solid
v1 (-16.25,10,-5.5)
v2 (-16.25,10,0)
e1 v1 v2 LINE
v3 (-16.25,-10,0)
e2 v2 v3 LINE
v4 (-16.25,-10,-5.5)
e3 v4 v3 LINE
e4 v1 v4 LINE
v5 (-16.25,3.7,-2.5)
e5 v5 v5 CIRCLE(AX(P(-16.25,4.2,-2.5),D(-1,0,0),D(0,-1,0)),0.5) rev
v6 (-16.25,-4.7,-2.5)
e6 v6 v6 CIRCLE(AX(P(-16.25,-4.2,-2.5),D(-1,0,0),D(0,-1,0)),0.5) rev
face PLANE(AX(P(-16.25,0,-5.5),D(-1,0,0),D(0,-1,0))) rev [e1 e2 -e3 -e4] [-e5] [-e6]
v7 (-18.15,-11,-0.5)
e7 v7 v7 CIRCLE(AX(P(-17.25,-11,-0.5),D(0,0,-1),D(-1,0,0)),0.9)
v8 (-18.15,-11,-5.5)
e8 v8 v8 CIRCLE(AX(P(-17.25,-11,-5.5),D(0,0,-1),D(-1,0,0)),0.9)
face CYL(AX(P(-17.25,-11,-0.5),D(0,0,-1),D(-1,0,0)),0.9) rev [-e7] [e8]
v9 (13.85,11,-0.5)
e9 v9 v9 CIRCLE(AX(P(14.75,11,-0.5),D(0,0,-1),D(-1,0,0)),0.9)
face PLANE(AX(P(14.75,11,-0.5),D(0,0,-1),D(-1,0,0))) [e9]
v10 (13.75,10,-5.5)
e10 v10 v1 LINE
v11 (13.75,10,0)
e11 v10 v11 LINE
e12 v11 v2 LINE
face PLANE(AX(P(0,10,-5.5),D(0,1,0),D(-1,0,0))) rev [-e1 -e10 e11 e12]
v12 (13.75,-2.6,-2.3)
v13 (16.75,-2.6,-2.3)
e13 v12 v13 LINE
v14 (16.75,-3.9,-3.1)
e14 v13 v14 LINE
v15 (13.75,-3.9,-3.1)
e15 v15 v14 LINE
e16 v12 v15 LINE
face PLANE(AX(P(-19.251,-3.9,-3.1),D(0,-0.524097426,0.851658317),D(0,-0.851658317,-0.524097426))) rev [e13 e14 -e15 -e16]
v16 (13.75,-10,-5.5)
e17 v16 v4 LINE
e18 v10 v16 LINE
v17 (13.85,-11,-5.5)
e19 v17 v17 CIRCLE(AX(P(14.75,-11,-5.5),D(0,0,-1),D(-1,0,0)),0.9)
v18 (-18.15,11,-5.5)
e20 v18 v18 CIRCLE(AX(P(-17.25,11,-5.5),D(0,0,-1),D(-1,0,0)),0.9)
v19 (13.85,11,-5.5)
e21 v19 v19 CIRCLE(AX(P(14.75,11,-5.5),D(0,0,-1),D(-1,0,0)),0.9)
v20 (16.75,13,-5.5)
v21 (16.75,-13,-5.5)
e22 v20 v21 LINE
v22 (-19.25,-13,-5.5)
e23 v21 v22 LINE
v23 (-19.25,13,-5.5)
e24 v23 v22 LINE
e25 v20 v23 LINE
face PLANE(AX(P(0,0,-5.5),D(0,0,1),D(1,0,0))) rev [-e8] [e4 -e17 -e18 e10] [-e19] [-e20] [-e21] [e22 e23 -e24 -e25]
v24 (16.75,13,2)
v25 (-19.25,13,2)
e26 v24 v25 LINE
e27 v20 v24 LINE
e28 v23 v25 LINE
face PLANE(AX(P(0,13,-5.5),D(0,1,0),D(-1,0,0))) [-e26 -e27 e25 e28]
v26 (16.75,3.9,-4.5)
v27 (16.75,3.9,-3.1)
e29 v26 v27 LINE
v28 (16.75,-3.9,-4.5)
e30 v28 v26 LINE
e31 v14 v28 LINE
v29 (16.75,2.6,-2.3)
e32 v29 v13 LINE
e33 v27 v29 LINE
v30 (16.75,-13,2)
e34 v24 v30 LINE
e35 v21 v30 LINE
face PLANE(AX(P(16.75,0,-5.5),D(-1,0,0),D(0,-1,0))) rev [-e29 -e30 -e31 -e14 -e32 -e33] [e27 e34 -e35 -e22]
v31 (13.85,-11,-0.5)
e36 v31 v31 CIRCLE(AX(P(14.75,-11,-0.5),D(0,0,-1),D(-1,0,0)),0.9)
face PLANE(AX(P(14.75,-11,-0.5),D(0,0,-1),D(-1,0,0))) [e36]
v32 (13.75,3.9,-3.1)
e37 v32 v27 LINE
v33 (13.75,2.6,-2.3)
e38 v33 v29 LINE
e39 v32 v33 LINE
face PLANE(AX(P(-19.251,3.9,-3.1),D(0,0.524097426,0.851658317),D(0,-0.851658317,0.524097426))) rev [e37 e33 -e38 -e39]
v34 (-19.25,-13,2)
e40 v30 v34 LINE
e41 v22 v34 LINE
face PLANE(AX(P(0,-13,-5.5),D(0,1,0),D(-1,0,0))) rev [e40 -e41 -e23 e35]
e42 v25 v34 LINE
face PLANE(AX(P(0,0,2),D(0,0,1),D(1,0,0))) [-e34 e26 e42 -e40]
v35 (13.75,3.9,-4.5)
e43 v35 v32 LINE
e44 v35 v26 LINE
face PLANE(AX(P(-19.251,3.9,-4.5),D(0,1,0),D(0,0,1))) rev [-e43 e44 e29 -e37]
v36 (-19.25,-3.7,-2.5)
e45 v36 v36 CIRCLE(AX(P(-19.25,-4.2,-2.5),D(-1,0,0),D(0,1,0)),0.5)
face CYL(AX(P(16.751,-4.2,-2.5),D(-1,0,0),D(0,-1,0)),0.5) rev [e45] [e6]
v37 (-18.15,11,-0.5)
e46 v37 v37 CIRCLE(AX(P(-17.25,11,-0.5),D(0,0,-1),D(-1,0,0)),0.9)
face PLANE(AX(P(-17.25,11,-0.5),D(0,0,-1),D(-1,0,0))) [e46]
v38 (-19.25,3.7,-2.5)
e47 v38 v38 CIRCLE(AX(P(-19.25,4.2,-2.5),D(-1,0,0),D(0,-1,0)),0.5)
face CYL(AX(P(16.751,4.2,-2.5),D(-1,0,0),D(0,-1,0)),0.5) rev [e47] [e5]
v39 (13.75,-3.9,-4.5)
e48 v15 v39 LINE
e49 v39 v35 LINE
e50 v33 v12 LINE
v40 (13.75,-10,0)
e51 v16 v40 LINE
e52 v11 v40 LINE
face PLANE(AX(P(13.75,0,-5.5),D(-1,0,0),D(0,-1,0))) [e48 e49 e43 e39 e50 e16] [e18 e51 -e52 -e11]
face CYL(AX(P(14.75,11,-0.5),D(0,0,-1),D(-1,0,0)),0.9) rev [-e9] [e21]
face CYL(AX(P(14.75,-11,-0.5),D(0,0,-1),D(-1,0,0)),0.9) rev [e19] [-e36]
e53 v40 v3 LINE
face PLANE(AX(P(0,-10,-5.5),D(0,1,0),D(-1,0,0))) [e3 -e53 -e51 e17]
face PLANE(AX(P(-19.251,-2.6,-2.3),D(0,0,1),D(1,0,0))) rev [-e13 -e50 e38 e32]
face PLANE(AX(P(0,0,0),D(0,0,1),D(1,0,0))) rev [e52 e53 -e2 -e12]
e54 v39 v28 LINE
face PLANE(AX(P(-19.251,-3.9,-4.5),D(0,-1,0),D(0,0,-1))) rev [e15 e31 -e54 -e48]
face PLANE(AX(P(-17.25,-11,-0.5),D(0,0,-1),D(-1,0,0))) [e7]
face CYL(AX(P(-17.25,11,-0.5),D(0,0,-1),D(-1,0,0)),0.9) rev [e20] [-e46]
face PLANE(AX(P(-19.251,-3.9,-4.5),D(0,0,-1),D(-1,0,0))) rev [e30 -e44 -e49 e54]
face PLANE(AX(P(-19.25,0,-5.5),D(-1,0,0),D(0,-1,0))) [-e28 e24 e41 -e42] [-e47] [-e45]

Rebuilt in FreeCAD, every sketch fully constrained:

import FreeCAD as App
import Part
import Sketcher
Q = App.Units.Quantity


def add_polygon(sketch, points):
    """Adds a closed chain of lines whose ends are joined by coincident constraints."""
    first, n = sketch.GeometryCount, len(points)
    for a, b in zip(points, points[1:] + points[:1]):
        sketch.addGeometry(Part.LineSegment(App.Vector(*a, 0), App.Vector(*b, 0)), False)
    for i in range(n):
        sketch.addConstraint(Sketcher.Constraint("Coincident", first + i, 2, first + (i + 1) % n, 1))

doc = App.newDocument("Part")
body = doc.addObject("PartDesign::Body", "Body")

sketch1 = body.newObject("Sketcher::SketchObject", "Sketch")
sketch1.AttachmentSupport = (doc.getObject("XY_Plane"), [""])
sketch1.MapMode = "FlatFace"
add_polygon(sketch1, [(-19, 13), (-19, -13), (17, -13), (17, 13)])
add_polygon(sketch1, [(14, -10), (-16, -10), (-16, 10), (14, 10)])
sketch1.addConstraint([
    Sketcher.Constraint("Vertical", 0),
    Sketcher.Constraint("Horizontal", 1),
    Sketcher.Constraint("Vertical", 2),
    Sketcher.Constraint("Horizontal", 3),
    Sketcher.Constraint("Horizontal", 4),
    Sketcher.Constraint("Vertical", 5),
    Sketcher.Constraint("Horizontal", 6),
    Sketcher.Constraint("Vertical", 7),
    Sketcher.Constraint("DistanceX", 1, 1, 1, 2, Q("36 mm")),
    Sketcher.Constraint("DistanceX", 4, 2, 4, 1, Q("30 mm")),
    Sketcher.Constraint("DistanceY", 0, 2, 0, 1, Q("26 mm")),
    Sketcher.Constraint("DistanceY", 5, 1, 5, 2, Q("20 mm")),
    Sketcher.Constraint("DistanceY", 0, 2, -1, 1, Q("13 mm")),
    Sketcher.Constraint("DistanceY", 4, 2, -1, 1, Q("10 mm")),
    Sketcher.Constraint("DistanceX", 0, 2, 4, 2, Q("3 mm")),
    Sketcher.Constraint("DistanceX", 0, 2, -1, 1, Q("19.25 mm")),
])
pad1 = body.newObject("PartDesign::Pad", "Pad")
pad1.Profile = sketch1
pad1.Length = 5.5
pad1.Reversed = True

sketch2 = body.newObject("Sketcher::SketchObject", "Sketch001")
sketch2.AttachmentSupport = (doc.getObject("YZ_Plane"), [""])
sketch2.MapMode = "FlatFace"
sketch2.AttachmentOffset = App.Placement(App.Vector(0, 0, 16.75), App.Rotation())
add_polygon(sketch2, [(-3.9, -4.5), (3.9, -4.5), (3.9, -3.1), (2.6, -2.3), (-2.6, -2.3), (-3.9, -3.1)])
sketch2.addConstraint([
    Sketcher.Constraint("Horizontal", 0),
    Sketcher.Constraint("Vertical", 1),
    Sketcher.Constraint("Horizontal", 3),
    Sketcher.Constraint("Vertical", 5),
    Sketcher.Constraint("Symmetric", 1, 2, 4, 2, -2),
    Sketcher.Constraint("Equal", 2, 4),
    Sketcher.Constraint("DistanceX", 0, 1, 0, 2, Q("7.8 mm")),
    Sketcher.Constraint("DistanceX", 3, 2, 3, 1, Q("5.2 mm")),
    Sketcher.Constraint("DistanceY", 1, 1, 1, 2, Q("1.4 mm")),
    Sketcher.Constraint("DistanceY", 0, 2, -1, 1, Q("4.5 mm")),
    Sketcher.Constraint("DistanceY", 2, 2, -1, 1, Q("2.3 mm")),
])
pocket1 = body.newObject("PartDesign::Pocket", "Pocket")
pocket1.Profile = sketch2
pocket1.Type = "UpToFirst"

sketch3 = body.newObject("Sketcher::SketchObject", "Sketch002")
sketch3.AttachmentSupport = (doc.getObject("XY_Plane"), [""])
sketch3.MapMode = "FlatFace"
add_polygon(sketch3, [(-19, 13), (-19, -13), (17, -13), (17, 13)])
sketch3.addConstraint([
    Sketcher.Constraint("Vertical", 0),
    Sketcher.Constraint("Horizontal", 1),
    Sketcher.Constraint("Vertical", 2),
    Sketcher.Constraint("Horizontal", 3),
    Sketcher.Constraint("DistanceX", 1, 1, 1, 2, Q("36 mm")),
    Sketcher.Constraint("DistanceY", 0, 2, 0, 1, Q("26 mm")),
    Sketcher.Constraint("DistanceY", 0, 2, -1, 1, Q("13 mm")),
    Sketcher.Constraint("DistanceX", 0, 2, -1, 1, Q("19.25 mm")),
])
pad2 = body.newObject("PartDesign::Pad", "Pad001")
pad2.Profile = sketch3
pad2.Length = 2

sketch4 = body.newObject("Sketcher::SketchObject", "Sketch003")
sketch4.AttachmentSupport = (doc.getObject("XY_Plane"), [""])
sketch4.MapMode = "FlatFace"
sketch4.AttachmentOffset = App.Placement(App.Vector(0, 0, -5.5), App.Rotation())
sketch4.addGeometry([
    Part.Circle(App.Vector(14.8, 11, 0), App.Vector(0, 0, 1), 0.9),
    Part.Circle(App.Vector(-17.2, 11, 0), App.Vector(0, 0, 1), 0.9),
    Part.Circle(App.Vector(-17.2, -11, 0), App.Vector(0, 0, 1), 0.9),
    Part.Circle(App.Vector(14.8, -11, 0), App.Vector(0, 0, 1), 0.9),
], False)
sketch4.addConstraint([
    Sketcher.Constraint("Equal", 0, 1),
    Sketcher.Constraint("Equal", 1, 2),
    Sketcher.Constraint("Equal", 2, 3),
    Sketcher.Constraint("Symmetric", 1, 3, 2, 3, -1),
    Sketcher.Constraint("Symmetric", 0, 3, 3, 3, -1),
    Sketcher.Constraint("Horizontal", 0, 3, 1, 3),
    Sketcher.Constraint("Diameter", 0, Q("1.8 mm")),
    Sketcher.Constraint("DistanceY", -1, 1, 0, 3, Q("11 mm")),
    Sketcher.Constraint("DistanceX", 1, 3, 0, 3, Q("32 mm")),
    Sketcher.Constraint("DistanceX", -1, 1, 0, 3, Q("14.75 mm")),
])
pocket2 = body.newObject("PartDesign::Pocket", "Pocket001")
pocket2.Profile = sketch4
pocket2.Length = 5
pocket2.Reversed = True

sketch5 = body.newObject("Sketcher::SketchObject", "Sketch004")
sketch5.AttachmentSupport = (doc.getObject("YZ_Plane"), [""])
sketch5.MapMode = "FlatFace"
sketch5.AttachmentOffset = App.Placement(App.Vector(0, 0, -19.25), App.Rotation())
sketch5.addGeometry(Part.Circle(App.Vector(4.2, -2.5, 0), App.Vector(0, 0, 1), 0.5), False)
sketch5.addConstraint([
    Sketcher.Constraint("Diameter", 0, Q("1 mm")),
    Sketcher.Constraint("DistanceX", -1, 1, 0, 3, Q("4.2 mm")),
    Sketcher.Constraint("DistanceY", 0, 3, -1, 1, Q("2.5 mm")),
])
pocket3 = body.newObject("PartDesign::Pocket", "Pocket002")
pocket3.Profile = sketch5
pocket3.Type = "UpToFirst"
pocket3.Reversed = True

sketch6 = body.newObject("Sketcher::SketchObject", "Sketch005")
sketch6.AttachmentSupport = (doc.getObject("YZ_Plane"), [""])
sketch6.MapMode = "FlatFace"
sketch6.AttachmentOffset = App.Placement(App.Vector(0, 0, -19.25), App.Rotation())
sketch6.addGeometry(Part.Circle(App.Vector(-4.2, -2.5, 0), App.Vector(0, 0, 1), 0.5), False)
sketch6.addConstraint([
    Sketcher.Constraint("Diameter", 0, Q("1 mm")),
    Sketcher.Constraint("DistanceX", 0, 3, -1, 1, Q("4.2 mm")),
    Sketcher.Constraint("DistanceY", 0, 3, -1, 1, Q("2.5 mm")),
])
pocket4 = body.newObject("PartDesign::Pocket", "Pocket003")
pocket4.Profile = sketch6
pocket4.Type = "UpToFirst"
pocket4.Reversed = True

doc.recompute()
